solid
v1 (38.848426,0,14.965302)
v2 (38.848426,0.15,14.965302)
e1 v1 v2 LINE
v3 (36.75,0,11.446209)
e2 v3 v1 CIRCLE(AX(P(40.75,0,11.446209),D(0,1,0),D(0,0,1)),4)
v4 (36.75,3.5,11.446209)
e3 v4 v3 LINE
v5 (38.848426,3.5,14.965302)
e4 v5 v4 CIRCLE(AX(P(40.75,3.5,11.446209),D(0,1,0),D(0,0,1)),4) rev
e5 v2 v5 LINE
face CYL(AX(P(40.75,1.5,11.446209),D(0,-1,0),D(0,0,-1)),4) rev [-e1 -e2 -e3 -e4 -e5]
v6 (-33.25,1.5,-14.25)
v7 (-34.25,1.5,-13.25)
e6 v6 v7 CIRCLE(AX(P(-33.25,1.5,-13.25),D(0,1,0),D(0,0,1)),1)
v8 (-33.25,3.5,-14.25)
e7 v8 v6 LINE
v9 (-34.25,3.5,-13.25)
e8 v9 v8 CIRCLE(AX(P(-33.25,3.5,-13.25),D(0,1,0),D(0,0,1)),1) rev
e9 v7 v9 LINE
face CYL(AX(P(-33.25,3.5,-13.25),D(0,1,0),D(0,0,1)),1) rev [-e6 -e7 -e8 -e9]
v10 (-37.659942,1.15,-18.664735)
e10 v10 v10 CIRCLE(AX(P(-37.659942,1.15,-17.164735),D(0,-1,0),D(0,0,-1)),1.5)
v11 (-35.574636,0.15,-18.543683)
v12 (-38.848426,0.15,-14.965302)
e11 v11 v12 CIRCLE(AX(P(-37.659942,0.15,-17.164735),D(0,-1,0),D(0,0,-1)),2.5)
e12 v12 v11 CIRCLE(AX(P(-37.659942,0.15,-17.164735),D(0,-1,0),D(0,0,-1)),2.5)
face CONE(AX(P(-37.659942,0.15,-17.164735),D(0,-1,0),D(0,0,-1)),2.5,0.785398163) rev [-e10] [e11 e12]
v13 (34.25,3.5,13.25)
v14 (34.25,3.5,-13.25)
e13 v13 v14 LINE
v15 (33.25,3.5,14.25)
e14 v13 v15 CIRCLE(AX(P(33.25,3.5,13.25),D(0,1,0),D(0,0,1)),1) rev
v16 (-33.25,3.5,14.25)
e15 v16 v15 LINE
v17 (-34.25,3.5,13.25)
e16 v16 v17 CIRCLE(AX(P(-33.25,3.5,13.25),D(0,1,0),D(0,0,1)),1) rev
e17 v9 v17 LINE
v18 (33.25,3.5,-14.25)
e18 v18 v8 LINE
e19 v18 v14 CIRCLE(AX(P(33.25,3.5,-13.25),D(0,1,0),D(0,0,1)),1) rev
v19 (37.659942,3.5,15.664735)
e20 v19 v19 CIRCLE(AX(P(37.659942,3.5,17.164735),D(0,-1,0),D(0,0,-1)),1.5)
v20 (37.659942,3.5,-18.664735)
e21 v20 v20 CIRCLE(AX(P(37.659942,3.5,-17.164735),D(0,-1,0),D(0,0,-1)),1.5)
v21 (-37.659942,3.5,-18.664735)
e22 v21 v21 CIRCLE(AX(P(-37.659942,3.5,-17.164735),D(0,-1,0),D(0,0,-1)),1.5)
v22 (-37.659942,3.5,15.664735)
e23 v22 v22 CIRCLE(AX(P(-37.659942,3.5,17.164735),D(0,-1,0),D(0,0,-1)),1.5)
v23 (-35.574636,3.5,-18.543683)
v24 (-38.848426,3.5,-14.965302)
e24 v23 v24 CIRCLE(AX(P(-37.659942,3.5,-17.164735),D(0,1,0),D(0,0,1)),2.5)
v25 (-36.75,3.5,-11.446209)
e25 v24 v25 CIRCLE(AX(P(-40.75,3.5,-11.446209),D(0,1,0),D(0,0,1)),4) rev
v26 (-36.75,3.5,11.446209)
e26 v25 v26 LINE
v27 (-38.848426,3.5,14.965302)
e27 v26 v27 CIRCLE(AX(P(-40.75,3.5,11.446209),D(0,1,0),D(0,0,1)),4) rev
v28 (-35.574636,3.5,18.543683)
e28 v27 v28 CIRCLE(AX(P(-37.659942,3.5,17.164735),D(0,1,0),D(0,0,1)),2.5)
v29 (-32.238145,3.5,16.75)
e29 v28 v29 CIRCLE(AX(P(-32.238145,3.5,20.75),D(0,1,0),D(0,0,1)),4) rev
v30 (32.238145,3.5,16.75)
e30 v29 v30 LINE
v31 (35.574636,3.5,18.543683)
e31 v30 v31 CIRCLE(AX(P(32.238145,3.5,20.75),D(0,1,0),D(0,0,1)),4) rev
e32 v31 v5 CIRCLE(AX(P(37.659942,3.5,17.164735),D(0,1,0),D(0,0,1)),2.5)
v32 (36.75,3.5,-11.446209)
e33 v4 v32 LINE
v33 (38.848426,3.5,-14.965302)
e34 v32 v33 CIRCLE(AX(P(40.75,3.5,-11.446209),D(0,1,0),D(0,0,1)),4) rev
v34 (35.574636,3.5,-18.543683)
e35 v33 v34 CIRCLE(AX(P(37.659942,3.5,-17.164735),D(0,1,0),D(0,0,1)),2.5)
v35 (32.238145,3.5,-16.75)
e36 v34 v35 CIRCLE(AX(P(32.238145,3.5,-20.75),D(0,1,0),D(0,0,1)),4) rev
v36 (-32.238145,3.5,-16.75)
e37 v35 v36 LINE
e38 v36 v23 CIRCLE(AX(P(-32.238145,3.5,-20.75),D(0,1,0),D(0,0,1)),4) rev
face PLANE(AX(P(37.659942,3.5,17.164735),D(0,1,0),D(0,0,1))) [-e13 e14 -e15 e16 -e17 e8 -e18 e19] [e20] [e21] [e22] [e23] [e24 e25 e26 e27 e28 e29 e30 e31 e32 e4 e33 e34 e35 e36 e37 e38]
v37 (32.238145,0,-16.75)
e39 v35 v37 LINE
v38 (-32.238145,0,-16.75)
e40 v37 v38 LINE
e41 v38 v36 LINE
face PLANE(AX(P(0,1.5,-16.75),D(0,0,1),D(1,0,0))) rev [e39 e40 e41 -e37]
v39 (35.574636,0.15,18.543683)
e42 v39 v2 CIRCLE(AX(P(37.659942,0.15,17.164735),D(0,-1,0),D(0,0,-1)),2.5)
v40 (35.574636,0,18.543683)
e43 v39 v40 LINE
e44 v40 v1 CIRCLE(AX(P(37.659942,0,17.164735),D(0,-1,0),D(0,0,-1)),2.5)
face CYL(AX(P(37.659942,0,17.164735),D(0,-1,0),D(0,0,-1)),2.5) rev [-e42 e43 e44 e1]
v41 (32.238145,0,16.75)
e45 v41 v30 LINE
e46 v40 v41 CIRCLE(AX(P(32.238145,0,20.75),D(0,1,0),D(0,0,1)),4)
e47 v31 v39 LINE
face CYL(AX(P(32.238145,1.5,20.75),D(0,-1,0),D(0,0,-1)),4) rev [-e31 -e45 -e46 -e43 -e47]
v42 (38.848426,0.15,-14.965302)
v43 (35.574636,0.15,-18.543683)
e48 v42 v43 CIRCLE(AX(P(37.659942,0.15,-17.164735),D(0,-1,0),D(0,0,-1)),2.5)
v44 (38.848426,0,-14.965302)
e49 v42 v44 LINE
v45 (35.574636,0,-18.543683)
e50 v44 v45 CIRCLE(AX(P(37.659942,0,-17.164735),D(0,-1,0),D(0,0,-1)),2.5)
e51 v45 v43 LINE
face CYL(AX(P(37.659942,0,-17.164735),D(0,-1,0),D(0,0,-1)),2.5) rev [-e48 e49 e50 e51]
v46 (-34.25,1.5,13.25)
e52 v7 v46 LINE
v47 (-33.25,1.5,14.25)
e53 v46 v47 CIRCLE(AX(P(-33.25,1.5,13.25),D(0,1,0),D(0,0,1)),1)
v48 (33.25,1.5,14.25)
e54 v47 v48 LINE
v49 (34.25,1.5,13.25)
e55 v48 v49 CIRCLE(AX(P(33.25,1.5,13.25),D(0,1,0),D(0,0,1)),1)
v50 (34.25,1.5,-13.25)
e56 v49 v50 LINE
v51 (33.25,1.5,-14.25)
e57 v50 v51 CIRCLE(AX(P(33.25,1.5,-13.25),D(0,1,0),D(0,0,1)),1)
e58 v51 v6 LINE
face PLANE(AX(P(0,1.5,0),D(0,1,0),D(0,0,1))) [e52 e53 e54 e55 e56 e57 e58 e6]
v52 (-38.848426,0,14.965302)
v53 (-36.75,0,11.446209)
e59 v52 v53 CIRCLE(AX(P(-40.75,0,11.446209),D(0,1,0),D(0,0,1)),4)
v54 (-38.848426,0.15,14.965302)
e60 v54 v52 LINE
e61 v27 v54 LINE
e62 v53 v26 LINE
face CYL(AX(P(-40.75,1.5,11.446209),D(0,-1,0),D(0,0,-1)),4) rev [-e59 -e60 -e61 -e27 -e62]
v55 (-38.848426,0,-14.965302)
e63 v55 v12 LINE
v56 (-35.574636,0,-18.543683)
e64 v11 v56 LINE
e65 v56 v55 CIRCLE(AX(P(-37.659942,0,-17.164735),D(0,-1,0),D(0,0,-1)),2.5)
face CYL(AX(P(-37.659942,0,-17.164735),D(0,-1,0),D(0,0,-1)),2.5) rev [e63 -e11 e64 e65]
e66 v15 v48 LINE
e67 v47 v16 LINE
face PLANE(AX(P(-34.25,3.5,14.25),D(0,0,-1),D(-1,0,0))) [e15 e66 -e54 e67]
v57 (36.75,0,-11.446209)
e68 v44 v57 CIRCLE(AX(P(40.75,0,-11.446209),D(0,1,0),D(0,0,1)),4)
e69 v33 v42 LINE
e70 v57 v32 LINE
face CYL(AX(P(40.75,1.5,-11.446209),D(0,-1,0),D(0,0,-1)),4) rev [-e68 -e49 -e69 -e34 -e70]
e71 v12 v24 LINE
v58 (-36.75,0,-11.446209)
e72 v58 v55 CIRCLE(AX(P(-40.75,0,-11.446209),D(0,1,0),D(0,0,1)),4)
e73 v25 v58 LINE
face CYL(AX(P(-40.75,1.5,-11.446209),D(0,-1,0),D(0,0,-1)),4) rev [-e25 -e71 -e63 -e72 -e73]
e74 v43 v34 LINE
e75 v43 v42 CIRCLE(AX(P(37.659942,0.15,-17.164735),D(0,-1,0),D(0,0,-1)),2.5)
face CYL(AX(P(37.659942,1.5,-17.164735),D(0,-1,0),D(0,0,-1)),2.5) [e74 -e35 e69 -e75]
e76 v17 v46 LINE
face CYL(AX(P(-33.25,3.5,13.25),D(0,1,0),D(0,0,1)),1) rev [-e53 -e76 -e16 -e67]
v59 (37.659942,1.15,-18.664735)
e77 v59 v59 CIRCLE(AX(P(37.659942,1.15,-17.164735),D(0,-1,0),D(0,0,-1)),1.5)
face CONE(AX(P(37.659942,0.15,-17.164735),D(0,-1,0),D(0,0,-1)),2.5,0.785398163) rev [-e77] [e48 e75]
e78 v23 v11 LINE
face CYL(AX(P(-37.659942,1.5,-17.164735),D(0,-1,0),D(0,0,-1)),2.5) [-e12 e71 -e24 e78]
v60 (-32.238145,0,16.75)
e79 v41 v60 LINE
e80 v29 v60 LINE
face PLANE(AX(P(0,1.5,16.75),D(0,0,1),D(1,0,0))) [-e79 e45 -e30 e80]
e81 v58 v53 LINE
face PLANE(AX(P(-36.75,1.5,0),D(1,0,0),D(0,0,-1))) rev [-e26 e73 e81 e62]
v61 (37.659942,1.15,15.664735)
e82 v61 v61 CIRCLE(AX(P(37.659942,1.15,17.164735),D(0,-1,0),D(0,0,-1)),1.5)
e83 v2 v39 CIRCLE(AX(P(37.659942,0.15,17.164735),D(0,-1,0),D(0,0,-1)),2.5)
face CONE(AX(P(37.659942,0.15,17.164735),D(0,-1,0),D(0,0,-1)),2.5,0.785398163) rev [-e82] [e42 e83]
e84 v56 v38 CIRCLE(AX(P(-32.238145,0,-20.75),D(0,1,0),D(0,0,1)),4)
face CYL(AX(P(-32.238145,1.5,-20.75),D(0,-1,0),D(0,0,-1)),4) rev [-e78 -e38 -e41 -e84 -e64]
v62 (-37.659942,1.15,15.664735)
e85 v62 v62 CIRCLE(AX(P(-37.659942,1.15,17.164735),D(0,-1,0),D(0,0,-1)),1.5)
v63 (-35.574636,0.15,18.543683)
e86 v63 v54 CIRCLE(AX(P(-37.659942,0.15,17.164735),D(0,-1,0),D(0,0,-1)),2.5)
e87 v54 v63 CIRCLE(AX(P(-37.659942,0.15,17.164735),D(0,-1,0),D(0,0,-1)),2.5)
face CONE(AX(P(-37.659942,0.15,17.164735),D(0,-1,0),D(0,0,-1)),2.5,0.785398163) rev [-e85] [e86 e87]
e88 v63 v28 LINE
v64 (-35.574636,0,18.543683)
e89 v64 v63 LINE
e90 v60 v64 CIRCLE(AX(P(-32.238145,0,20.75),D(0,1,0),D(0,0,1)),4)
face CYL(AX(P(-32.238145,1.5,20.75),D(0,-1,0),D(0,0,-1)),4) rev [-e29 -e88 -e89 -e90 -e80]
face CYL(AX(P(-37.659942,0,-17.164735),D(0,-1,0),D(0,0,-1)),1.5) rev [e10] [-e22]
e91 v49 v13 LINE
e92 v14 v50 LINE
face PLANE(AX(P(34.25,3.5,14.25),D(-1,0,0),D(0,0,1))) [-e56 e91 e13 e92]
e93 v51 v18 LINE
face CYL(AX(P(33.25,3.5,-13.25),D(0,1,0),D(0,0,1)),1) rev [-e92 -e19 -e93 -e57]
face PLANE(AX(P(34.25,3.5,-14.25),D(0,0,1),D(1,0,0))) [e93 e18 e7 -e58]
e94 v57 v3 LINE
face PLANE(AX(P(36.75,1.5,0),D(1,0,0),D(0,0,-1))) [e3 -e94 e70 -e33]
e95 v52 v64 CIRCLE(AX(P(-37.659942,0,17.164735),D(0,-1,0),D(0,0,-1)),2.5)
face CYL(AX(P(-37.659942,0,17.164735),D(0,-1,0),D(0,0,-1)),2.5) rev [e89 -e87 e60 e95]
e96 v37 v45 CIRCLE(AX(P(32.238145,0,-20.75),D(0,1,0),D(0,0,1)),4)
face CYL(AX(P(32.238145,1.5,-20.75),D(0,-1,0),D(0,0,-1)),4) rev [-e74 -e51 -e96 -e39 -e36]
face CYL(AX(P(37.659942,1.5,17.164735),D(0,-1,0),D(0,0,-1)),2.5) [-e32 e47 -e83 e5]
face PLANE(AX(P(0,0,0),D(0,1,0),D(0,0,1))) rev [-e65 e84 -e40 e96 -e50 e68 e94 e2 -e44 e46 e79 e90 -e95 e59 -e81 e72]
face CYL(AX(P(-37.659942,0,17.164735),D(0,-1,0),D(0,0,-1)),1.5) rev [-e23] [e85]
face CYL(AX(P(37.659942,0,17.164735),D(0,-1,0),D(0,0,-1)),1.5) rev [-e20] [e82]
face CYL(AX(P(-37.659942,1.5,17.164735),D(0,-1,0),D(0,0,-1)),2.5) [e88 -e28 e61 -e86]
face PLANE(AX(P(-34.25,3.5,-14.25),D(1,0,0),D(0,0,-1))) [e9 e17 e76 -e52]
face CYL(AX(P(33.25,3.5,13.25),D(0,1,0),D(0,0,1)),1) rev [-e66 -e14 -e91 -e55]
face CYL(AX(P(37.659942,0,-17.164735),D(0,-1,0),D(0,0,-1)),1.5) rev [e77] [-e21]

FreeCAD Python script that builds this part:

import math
import FreeCAD as App
import Part
import Sketcher

V = App.Vector
Q = App.Units.Quantity


def edges_at(feature, points):
    """Names of the edges that pass closest to the given points."""
    edges = feature.Shape.Edges
    near = lambda p: min(range(len(edges)), key=lambda i: edges[i].distToShape(Part.Vertex(*p))[0])
    return sorted({f"Edge{near(p) + 1}" for p in points})


def add_polygon(sketch, points):
    """Adds a closed chain of lines whose ends are joined by coincident constraints."""
    first, n = sketch.GeometryCount, len(points)
    for a, b in zip(points, points[1:] + points[:1]):
        sketch.addGeometry(Part.LineSegment(App.Vector(*a, 0), App.Vector(*b, 0)), False)
    for i in range(n):
        sketch.addConstraint(Sketcher.Constraint("Coincident", first + i, 2, first + (i + 1) % n, 1))

doc = App.newDocument("Part")
body = doc.addObject("PartDesign::Body", "Body")

sketch1 = body.newObject("Sketcher::SketchObject", "Sketch")
sketch1.AttachmentSupport = (doc.getObject("XZ_Plane"), [""])
sketch1.MapMode = "FlatFace"
sketch1.addGeometry([
    Part.ArcOfCircle(Part.Circle(V(-37.659942, -17.164735, 0), V(0, 0, 1), 2.5), math.radians(68.655373), math.radians(369.549184)),
    Part.LineSegment(V(-36.75, -14.836215, 0), V(-36.75, 14.836215, 0)),
    Part.ArcOfCircle(Part.Circle(V(-37.659942, 17.164735, 0), V(0, 0, 1), 2.5), math.radians(-9.549184), math.radians(291.344627)),
    Part.LineSegment(V(-35.194583, 16.75, 0), V(35.194583, 16.75, 0)),
    Part.ArcOfCircle(Part.Circle(V(37.659942, 17.164735, 0), V(0, 0, 1), 2.5), math.radians(-111.344627), math.radians(189.549184)),
    Part.LineSegment(V(36.75, 14.836215, 0), V(36.75, -14.836215, 0)),
    Part.ArcOfCircle(Part.Circle(V(37.659942, -17.164735, 0), V(0, 0, 1), 2.5), math.radians(170.450816), math.radians(471.344627)),
    Part.LineSegment(V(35.194583, -16.75, 0), V(-35.194583, -16.75, 0)),
    Part.Circle(V(-37.659942, -17.164735, 0), V(0, 0, 1), 1),
    Part.Circle(V(-37.659942, 17.164735, 0), V(0, 0, 1), 1),
    Part.Circle(V(37.659942, -17.164735, 0), V(0, 0, 1), 1),
    Part.Circle(V(37.659942, 17.164735, 0), V(0, 0, 1), 1),
], False)
sketch1.addConstraint([
    Sketcher.Constraint("Coincident", 0, 1, 1, 1),
    Sketcher.Constraint("Coincident", 1, 2, 2, 2),
    Sketcher.Constraint("Coincident", 2, 1, 3, 1),
    Sketcher.Constraint("Coincident", 3, 2, 4, 2),
    Sketcher.Constraint("Coincident", 4, 1, 5, 1),
    Sketcher.Constraint("Coincident", 5, 2, 6, 2),
    Sketcher.Constraint("Coincident", 6, 1, 7, 1),
    Sketcher.Constraint("Coincident", 7, 2, 0, 2),
    Sketcher.Constraint("Vertical", 1),
    Sketcher.Constraint("Horizontal", 3),
    Sketcher.Constraint("Vertical", 5),
    Sketcher.Constraint("Horizontal", 7),
    Sketcher.Constraint("Coincident", 8, 3, 0, 3),
    Sketcher.Constraint("Coincident", 9, 3, 2, 3),
    Sketcher.Constraint("Coincident", 10, 3, 6, 3),
    Sketcher.Constraint("Coincident", 11, 3, 4, 3),
    Sketcher.Constraint("Equal", 0, 2),
    Sketcher.Constraint("Equal", 2, 4),
    Sketcher.Constraint("Equal", 4, 6),
    Sketcher.Constraint("Equal", 8, 9),
    Sketcher.Constraint("Equal", 9, 10),
    Sketcher.Constraint("Equal", 10, 11),
    Sketcher.Constraint("Symmetric", 0, 3, 4, 3, -1, 1),
    Sketcher.Constraint("Symmetric", 2, 3, 6, 3, -1, 1),
    Sketcher.Constraint("Symmetric", 2, 3, 4, 3, -2),
    Sketcher.Constraint("Horizontal", 1, 2, 4, 1),
    Sketcher.Constraint("Vertical", 3, 2, 6, 1),
    Sketcher.Constraint("Diameter", 8, Q("2 mm")),
    Sketcher.Constraint("Radius", 0, Q("2.5 mm")),
    Sketcher.Constraint("DistanceY", 6, 1, 3, 2, Q("33.5 mm")),
    Sketcher.Constraint("DistanceX", 0, 1, -1, 1, Q("36.75 mm")),
    Sketcher.Constraint("DistanceY", 1, 1, 1, 2, Q("29.672431 mm")),
    Sketcher.Constraint("DistanceX", 3, 1, 3, 2, Q("70.389166 mm")),
])
pad1 = body.newObject("PartDesign::Pad", "Pad")
pad1.Profile = sketch1
pad1.Length = 1.5
pad1.Reversed = True

sketch2 = body.newObject("Sketcher::SketchObject", "Sketch001")
sketch2.AttachmentSupport = (doc.getObject("XZ_Plane"), [""])
sketch2.MapMode = "FlatFace"
sketch2.AttachmentOffset = App.Placement(V(0, 0, -1.5), App.Rotation())
sketch2.addGeometry(Part.LineSegment(V(36.75, 14.836215, 0), V(36.75, -14.836215, 0)), False)
sketch2.addGeometry(Part.ArcOfCircle(Part.Circle(V(37.659942, -17.164735, 0), V(0, 0, 1), 2.5), math.radians(170.450816), math.radians(471.344627)), False)
sketch2.addGeometry(Part.LineSegment(V(35.194583, -16.75, 0), V(-35.194583, -16.75, 0)), False)
sketch2.addGeometry(Part.ArcOfCircle(Part.Circle(V(-37.659942, -17.164735, 0), V(0, 0, 1), 2.5), math.radians(68.655373), math.radians(369.549184)), False)
sketch2.addGeometry(Part.LineSegment(V(-36.75, -14.836215, 0), V(-36.75, 14.836215, 0)), False)
sketch2.addGeometry(Part.ArcOfCircle(Part.Circle(V(-37.659942, 17.164735, 0), V(0, 0, 1), 2.5), math.radians(-9.549184), math.radians(291.344627)), False)
sketch2.addGeometry(Part.LineSegment(V(-35.194583, 16.75, 0), V(35.194583, 16.75, 0)), False)
sketch2.addGeometry(Part.ArcOfCircle(Part.Circle(V(37.659942, 17.164735, 0), V(0, 0, 1), 2.5), math.radians(-111.344627), math.radians(189.549184)), False)
sketch2.addGeometry(Part.Circle(V(-37.659942, 17.164735, 0), V(0, 0, 1), 1), False)
sketch2.addGeometry(Part.Circle(V(37.659942, 17.164735, 0), V(0, 0, 1), 1), False)
sketch2.addGeometry(Part.Circle(V(-37.659942, -17.164735, 0), V(0, 0, 1), 1), False)
add_polygon(sketch2, [(34.25, 14.25), (-34.25, 14.25), (-34.25, -14.25), (34.25, -14.25)])
sketch2.addGeometry(Part.Circle(V(37.659942, -17.164735, 0), V(0, 0, 1), 1), False)
sketch2.addConstraint([
    Sketcher.Constraint("Coincident", 0, 2, 1, 2),
    Sketcher.Constraint("Coincident", 1, 1, 2, 1),
    Sketcher.Constraint("Coincident", 2, 2, 3, 2),
    Sketcher.Constraint("Coincident", 3, 1, 4, 1),
    Sketcher.Constraint("Coincident", 4, 2, 5, 2),
    Sketcher.Constraint("Coincident", 5, 1, 6, 1),
    Sketcher.Constraint("Coincident", 6, 2, 7, 2),
    Sketcher.Constraint("Coincident", 7, 1, 0, 1),
    Sketcher.Constraint("Vertical", 0),
    Sketcher.Constraint("Horizontal", 2),
    Sketcher.Constraint("Vertical", 4),
    Sketcher.Constraint("Horizontal", 6),
    Sketcher.Constraint("Horizontal", 11),
    Sketcher.Constraint("Vertical", 12),
    Sketcher.Constraint("Horizontal", 13),
    Sketcher.Constraint("Vertical", 14),
    Sketcher.Constraint("Coincident", 8, 3, 5, 3),
    Sketcher.Constraint("Coincident", 9, 3, 7, 3),
    Sketcher.Constraint("Coincident", 10, 3, 3, 3),
    Sketcher.Constraint("Coincident", 15, 3, 1, 3),
    Sketcher.Constraint("Equal", 1, 3),
    Sketcher.Constraint("Equal", 3, 5),
    Sketcher.Constraint("Equal", 5, 7),
    Sketcher.Constraint("Equal", 8, 9),
    Sketcher.Constraint("Equal", 9, 10),
    Sketcher.Constraint("Equal", 10, 15),
    Sketcher.Constraint("Symmetric", 1, 3, 5, 3, -1, 1),
    Sketcher.Constraint("Symmetric", 3, 3, 7, 3, -1, 1),
    Sketcher.Constraint("Symmetric", 11, 2, 13, 2, -1, 1),
    Sketcher.Constraint("Symmetric", 1, 3, 3, 3, -2),
    Sketcher.Constraint("Horizontal", 0, 2, 3, 1),
    Sketcher.Constraint("Vertical", 2, 2, 5, 1),
    Sketcher.Constraint("Diameter", 8, Q("2 mm")),
    Sketcher.Constraint("Radius", 1, Q("2.5 mm")),
    Sketcher.Constraint("DistanceX", 11, 2, 11, 1, Q("68.5 mm")),
    Sketcher.Constraint("DistanceY", 12, 2, 12, 1, Q("28.5 mm")),
    Sketcher.Constraint("DistanceY", 2, 2, 5, 1, Q("33.5 mm")),
    Sketcher.Constraint("DistanceX", 4, 2, 11, 2, Q("2.5 mm")),
    Sketcher.Constraint("DistanceY", 0, 2, 0, 1, Q("29.672431 mm")),
    Sketcher.Constraint("DistanceX", 2, 2, 2, 1, Q("70.389166 mm")),
])
pad2 = body.newObject("PartDesign::Pad", "Pad001")
pad2.Profile = sketch2
pad2.Length = 2
pad2.Reversed = True
doc.recompute()

fillet = body.newObject("PartDesign::Fillet", "Fillet")
fillet.Base = (pad2, edges_at(pad2, [
    (36.75, 2.5, 14.836),
    (35.195, 2.5, 16.75),
    (-35.195, 2.5, 16.75),
    (-36.75, 2.5, 14.836),
    (-36.75, 2.5, -14.836),
    (-35.195, 2.5, -16.75),
    (35.195, 2.5, -16.75),
    (36.75, 2.5, -14.836),
]))
fillet.Radius = 4

sketch3 = body.newObject("Sketcher::SketchObject", "Sketch002")
sketch3.AttachmentSupport = (doc.getObject("YZ_Plane"), [""])
sketch3.MapMode = "FlatFace"
sketch3.AttachmentOffset = App.Placement(V(0, 0, -37.659942), App.Rotation())
add_polygon(sketch3, [(3.5, 17.164735), (0, 17.164735), (0, 14.664735), (0.15, 14.664735), (1.15, 15.664735), (3.5, 15.664735)])
sketch3.addGeometry(Part.LineSegment(V(0, 17.164735, 0), V(3.5, 17.164735, 0)), True)
sketch3.addConstraint([
    Sketcher.Constraint("Horizontal", 0),
    Sketcher.Constraint("Vertical", 1),
    Sketcher.Constraint("Horizontal", 2),
    Sketcher.Constraint("Horizontal", 4),
    Sketcher.Constraint("Vertical", 5),
    Sketcher.Constraint("Horizontal", 6),
    Sketcher.Constraint("Coincident", 6, 1, 0, 2),
    Sketcher.Constraint("PointOnObject", 0, 2, -2),
    Sketcher.Constraint("Vertical", 4, 2, 6, 2),
    Sketcher.Constraint("Angle", 3, Q("45 deg")),
    Sketcher.Constraint("DistanceX", 0, 2, 0, 1, Q("3.5 mm")),
    Sketcher.Constraint("DistanceY", 1, 2, 1, 1, Q("2.5 mm")),
    Sketcher.Constraint("DistanceY", 5, 1, 5, 2, Q("1.5 mm")),
    Sketcher.Constraint("DistanceX", 2, 1, 2, 2, Q("0.15 mm")),
    Sketcher.Constraint("DistanceY", -1, 1, 0, 2, Q("17.164735 mm")),
])
groove = body.newObject("PartDesign::Groove", "Groove")
groove.Profile = sketch3
groove.ReferenceAxis = (sketch3, ["Axis0"])
groove.Angle = 360
doc.recompute()

linearpattern = body.newObject("PartDesign::LinearPattern", "LinearPattern")
linearpattern.Originals = [groove]
linearpattern.Direction = (doc.getObject("Z_Axis"), [""])
linearpattern.Mode = "offset"
linearpattern.Offset = 34.329471
linearpattern.Occurrences = 2
linearpattern.Reversed = True
body.Tip = linearpattern
doc.recompute()

linearpattern2 = body.newObject("PartDesign::LinearPattern", "LinearPattern001")
linearpattern2.Originals = [groove]
linearpattern2.Direction = (doc.getObject("X_Axis"), [""])
linearpattern2.Mode = "offset"
linearpattern2.Offset = 75.319884
linearpattern2.Occurrences = 2
body.Tip = linearpattern2
doc.recompute()

datumline = body.newObject("PartDesign::Line", "DatumLine")
datumline.Placement = App.Placement(V(0, 0, 0), App.Rotation(V(0, 0, 1), V(0.909942021, 0, -0.414735479)))
linearpattern3 = body.newObject("PartDesign::LinearPattern", "LinearPattern002")
linearpattern3.Originals = [groove]
linearpattern3.Direction = (datumline, [""])
linearpattern3.Mode = "offset"
linearpattern3.Offset = 82.774377
linearpattern3.Occurrences = 2
body.Tip = linearpattern3
doc.recompute()

fillet2 = body.newObject("PartDesign::Fillet", "Fillet001")
fillet2.Base = (linearpattern3, edges_at(linearpattern3, [
    (34.25, 2.5, 14.25),
    (34.25, 2.5, -14.25),
    (-34.25, 2.5, -14.25),
    (-34.25, 2.5, 14.25),
]))
fillet2.Radius = 1

doc.recompute()
